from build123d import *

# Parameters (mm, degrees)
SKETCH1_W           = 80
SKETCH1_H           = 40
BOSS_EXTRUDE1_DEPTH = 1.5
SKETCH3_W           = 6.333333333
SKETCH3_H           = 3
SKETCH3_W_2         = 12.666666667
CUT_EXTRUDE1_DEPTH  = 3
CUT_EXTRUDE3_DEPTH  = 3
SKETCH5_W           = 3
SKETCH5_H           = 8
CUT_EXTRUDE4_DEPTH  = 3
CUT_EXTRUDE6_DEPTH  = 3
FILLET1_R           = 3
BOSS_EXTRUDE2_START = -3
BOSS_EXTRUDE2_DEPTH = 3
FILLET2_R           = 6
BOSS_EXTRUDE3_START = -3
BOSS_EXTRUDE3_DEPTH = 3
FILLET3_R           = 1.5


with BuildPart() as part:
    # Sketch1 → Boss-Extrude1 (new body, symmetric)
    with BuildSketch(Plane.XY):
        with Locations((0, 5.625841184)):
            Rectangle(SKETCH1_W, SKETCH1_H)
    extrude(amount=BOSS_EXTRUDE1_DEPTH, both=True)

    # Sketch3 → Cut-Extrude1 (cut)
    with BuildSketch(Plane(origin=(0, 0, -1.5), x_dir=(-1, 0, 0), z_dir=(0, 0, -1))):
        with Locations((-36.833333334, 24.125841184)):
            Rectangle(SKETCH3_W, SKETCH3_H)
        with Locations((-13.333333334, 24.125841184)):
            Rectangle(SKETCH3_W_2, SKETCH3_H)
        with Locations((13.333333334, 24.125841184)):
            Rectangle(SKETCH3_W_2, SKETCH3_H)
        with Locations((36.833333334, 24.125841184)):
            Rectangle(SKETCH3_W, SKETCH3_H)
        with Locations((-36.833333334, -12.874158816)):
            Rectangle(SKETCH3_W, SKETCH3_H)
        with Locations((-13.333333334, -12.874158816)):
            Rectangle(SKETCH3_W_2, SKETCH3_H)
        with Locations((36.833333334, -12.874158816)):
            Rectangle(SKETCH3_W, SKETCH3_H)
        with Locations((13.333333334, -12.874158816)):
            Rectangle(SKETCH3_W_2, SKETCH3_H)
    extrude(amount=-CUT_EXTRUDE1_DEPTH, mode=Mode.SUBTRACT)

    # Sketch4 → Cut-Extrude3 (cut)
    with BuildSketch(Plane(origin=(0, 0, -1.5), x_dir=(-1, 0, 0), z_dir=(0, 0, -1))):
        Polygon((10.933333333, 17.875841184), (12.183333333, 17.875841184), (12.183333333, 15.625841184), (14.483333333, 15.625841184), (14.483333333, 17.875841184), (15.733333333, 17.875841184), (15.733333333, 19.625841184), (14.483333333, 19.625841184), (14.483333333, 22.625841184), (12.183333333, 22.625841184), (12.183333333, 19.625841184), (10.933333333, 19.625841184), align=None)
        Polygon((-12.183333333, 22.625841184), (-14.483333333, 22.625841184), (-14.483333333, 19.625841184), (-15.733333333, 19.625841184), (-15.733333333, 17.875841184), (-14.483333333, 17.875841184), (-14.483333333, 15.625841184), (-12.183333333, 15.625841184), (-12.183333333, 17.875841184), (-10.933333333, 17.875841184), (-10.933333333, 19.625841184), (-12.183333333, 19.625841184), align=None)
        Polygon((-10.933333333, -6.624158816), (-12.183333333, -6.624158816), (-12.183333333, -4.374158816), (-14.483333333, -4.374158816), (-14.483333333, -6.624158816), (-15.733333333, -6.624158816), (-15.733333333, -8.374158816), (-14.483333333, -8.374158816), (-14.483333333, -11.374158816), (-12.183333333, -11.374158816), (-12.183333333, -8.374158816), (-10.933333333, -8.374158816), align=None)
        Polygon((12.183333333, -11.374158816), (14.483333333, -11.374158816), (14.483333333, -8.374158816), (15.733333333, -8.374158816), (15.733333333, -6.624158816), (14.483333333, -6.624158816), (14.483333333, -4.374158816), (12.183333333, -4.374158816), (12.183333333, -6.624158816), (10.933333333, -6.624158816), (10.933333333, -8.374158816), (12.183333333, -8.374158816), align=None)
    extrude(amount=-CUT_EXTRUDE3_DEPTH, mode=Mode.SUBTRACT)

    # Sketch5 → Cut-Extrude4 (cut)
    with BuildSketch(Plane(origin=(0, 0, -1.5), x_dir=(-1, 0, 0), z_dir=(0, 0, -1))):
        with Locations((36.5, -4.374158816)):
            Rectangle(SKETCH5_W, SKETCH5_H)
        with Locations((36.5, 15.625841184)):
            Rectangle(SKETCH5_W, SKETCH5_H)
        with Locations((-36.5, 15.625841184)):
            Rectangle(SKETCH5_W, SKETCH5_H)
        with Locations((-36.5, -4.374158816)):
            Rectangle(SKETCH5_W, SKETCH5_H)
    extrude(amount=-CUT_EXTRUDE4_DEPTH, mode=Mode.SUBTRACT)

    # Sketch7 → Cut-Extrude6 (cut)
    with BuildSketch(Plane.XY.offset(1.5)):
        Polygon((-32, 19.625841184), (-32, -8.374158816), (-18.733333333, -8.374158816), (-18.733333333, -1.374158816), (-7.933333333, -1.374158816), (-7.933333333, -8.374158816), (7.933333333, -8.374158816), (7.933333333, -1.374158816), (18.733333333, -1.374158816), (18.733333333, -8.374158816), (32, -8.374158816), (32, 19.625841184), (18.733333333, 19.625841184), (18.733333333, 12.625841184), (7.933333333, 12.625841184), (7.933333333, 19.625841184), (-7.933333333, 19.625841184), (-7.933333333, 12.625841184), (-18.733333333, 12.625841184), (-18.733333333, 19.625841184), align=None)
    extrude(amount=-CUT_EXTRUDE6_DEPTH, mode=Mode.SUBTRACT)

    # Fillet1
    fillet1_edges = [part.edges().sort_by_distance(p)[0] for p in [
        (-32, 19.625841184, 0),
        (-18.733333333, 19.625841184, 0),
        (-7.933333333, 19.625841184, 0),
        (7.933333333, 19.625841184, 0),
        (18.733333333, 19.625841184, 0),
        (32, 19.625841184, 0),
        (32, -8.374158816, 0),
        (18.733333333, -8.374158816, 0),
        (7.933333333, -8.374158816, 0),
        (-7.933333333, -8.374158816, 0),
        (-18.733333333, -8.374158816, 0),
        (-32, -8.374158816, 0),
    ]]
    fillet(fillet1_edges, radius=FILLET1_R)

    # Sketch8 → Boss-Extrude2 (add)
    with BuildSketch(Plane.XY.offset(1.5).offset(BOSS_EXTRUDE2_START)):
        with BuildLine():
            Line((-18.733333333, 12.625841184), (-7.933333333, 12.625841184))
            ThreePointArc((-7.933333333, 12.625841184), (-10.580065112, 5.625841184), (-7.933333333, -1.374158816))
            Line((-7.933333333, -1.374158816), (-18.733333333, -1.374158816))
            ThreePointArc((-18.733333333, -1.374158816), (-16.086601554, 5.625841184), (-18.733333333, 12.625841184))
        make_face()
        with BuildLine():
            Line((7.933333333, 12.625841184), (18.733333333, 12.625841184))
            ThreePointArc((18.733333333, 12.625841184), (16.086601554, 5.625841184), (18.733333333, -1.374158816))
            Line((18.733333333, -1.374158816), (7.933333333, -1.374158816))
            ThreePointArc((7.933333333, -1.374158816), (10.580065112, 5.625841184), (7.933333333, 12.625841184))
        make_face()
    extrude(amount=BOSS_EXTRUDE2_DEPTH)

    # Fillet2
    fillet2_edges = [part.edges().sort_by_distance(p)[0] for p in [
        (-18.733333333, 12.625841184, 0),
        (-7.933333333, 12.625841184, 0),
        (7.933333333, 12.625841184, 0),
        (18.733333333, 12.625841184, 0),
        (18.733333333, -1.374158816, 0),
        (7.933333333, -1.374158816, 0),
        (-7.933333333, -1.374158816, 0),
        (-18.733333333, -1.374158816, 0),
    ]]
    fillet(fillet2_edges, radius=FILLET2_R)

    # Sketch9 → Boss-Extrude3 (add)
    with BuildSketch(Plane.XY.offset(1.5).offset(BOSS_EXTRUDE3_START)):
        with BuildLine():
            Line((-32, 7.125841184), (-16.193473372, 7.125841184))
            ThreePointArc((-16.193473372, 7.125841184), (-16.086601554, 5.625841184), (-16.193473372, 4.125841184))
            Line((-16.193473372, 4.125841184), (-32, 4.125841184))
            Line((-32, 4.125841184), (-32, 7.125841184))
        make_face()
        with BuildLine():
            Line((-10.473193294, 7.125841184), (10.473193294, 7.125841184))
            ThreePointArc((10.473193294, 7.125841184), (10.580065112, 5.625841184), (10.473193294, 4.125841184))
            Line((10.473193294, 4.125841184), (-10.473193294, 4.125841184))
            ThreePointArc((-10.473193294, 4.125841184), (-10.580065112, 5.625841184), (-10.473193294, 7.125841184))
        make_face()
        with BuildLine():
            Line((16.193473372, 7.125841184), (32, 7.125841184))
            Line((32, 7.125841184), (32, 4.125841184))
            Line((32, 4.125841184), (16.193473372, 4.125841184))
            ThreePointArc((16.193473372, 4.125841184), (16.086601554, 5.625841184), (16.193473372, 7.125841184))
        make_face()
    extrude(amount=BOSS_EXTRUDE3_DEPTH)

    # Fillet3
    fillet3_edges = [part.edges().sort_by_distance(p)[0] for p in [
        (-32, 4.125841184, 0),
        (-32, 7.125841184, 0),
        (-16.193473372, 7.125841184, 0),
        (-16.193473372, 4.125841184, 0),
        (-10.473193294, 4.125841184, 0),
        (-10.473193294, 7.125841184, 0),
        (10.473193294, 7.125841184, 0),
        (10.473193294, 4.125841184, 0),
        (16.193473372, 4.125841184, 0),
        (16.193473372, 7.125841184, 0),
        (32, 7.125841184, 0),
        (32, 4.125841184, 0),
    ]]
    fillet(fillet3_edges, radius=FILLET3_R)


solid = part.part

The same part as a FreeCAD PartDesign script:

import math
import FreeCAD as App
import Part
import Sketcher
from FreeCAD import Vector


def edges_at(feature, points):
    """Names of the edges that pass closest to the given points."""
    edges = feature.Shape.Edges
    near = lambda p: min(range(len(edges)), key=lambda i: edges[i].distToShape(Part.Vertex(*p))[0])
    return sorted({f"Edge{near(p) + 1}" for p in points})

doc = App.newDocument("Part")
body = doc.addObject("PartDesign::Body", "Body")

sketch1 = body.newObject("Sketcher::SketchObject", "Sketch")
sketch1.AttachmentSupport = (doc.getObject("XY_Plane"), [""])
sketch1.MapMode = "FlatFace"
sketch1.addGeometry(Part.LineSegment(Vector(-40, 26, 0), Vector(-40, -14, 0)), False)
sketch1.addGeometry(Part.LineSegment(Vector(-40, -14, 0), Vector(40, -14, 0)), False)
sketch1.addGeometry(Part.LineSegment(Vector(40, -14, 0), Vector(40, 26, 0)), False)
sketch1.addGeometry(Part.LineSegment(Vector(40, 26, 0), Vector(-40, 26, 0)), False)
sketch1.addConstraint(Sketcher.Constraint("Coincident", 0, 2, 1, 1))
sketch1.addConstraint(Sketcher.Constraint("Coincident", 1, 2, 2, 1))
sketch1.addConstraint(Sketcher.Constraint("Coincident", 2, 2, 3, 1))
sketch1.addConstraint(Sketcher.Constraint("Coincident", 3, 2, 0, 1))
sketch1.addConstraint(Sketcher.Constraint("Vertical", 0))
sketch1.addConstraint(Sketcher.Constraint("Horizontal", 1))
sketch1.addConstraint(Sketcher.Constraint("Vertical", 2))
sketch1.addConstraint(Sketcher.Constraint("Horizontal", 3))
sketch1.addConstraint(Sketcher.Constraint("DistanceX", 1, 1, 1, 2, 80.0))
sketch1.addConstraint(Sketcher.Constraint("DistanceY", 0, 2, 0, 1, 40.0))
sketch1.addConstraint(Sketcher.Constraint("DistanceX", 0, 2, -1, 1, 40.0))
sketch1.addConstraint(Sketcher.Constraint("DistanceY", 0, 2, -1, 1, 14.374159))
pad1 = body.newObject("PartDesign::Pad", "Pad")
pad1.Profile = sketch1
pad1.Length = 3
pad1.Midplane = True

sketch2 = body.newObject("Sketcher::SketchObject", "Sketch001")
sketch2.AttachmentSupport = (doc.getObject("XY_Plane"), [""])
sketch2.MapMode = "FlatFace"
sketch2.AttachmentOffset = App.Placement(Vector(0, 0, -1.5), App.Rotation())
sketch2.addGeometry(Part.LineSegment(Vector(40, 25.6, 0), Vector(40, 22.6, 0)), False)
sketch2.addGeometry(Part.LineSegment(Vector(40, 22.6, 0), Vector(33.7, 22.6, 0)), False)
sketch2.addGeometry(Part.LineSegment(Vector(33.7, 22.6, 0), Vector(33.7, 25.6, 0)), False)
sketch2.addGeometry(Part.LineSegment(Vector(33.7, 25.6, 0), Vector(40, 25.6, 0)), False)
sketch2.addGeometry(Part.LineSegment(Vector(19.7, 25.6, 0), Vector(19.7, 22.6, 0)), False)
sketch2.addGeometry(Part.LineSegment(Vector(19.7, 22.6, 0), Vector(7, 22.6, 0)), False)
sketch2.addGeometry(Part.LineSegment(Vector(7, 22.6, 0), Vector(7, 25.6, 0)), False)
sketch2.addGeometry(Part.LineSegment(Vector(7, 25.6, 0), Vector(19.7, 25.6, 0)), False)
sketch2.addGeometry(Part.LineSegment(Vector(-7, 25.6, 0), Vector(-7, 22.6, 0)), False)
sketch2.addGeometry(Part.LineSegment(Vector(-7, 22.6, 0), Vector(-19.7, 22.6, 0)), False)
sketch2.addGeometry(Part.LineSegment(Vector(-19.7, 22.6, 0), Vector(-19.7, 25.6, 0)), False)
sketch2.addGeometry(Part.LineSegment(Vector(-19.7, 25.6, 0), Vector(-7, 25.6, 0)), False)
sketch2.addGeometry(Part.LineSegment(Vector(-33.7, 25.6, 0), Vector(-33.7, 22.6, 0)), False)
sketch2.addGeometry(Part.LineSegment(Vector(-33.7, 22.6, 0), Vector(-40, 22.6, 0)), False)
sketch2.addGeometry(Part.LineSegment(Vector(-40, 22.6, 0), Vector(-40, 25.6, 0)), False)
sketch2.addGeometry(Part.LineSegment(Vector(-40, 25.6, 0), Vector(-33.7, 25.6, 0)), False)
sketch2.addGeometry(Part.LineSegment(Vector(40, -11.4, 0), Vector(40, -14.4, 0)), False)
sketch2.addGeometry(Part.LineSegment(Vector(40, -14.4, 0), Vector(33.7, -14.4, 0)), False)
sketch2.addGeometry(Part.LineSegment(Vector(33.7, -14.4, 0), Vector(33.7, -11.4, 0)), False)
sketch2.addGeometry(Part.LineSegment(Vector(33.7, -11.4, 0), Vector(40, -11.4, 0)), False)
sketch2.addGeometry(Part.LineSegment(Vector(19.7, -11.4, 0), Vector(19.7, -14.4, 0)), False)
sketch2.addGeometry(Part.LineSegment(Vector(19.7, -14.4, 0), Vector(7, -14.4, 0)), False)
sketch2.addGeometry(Part.LineSegment(Vector(7, -14.4, 0), Vector(7, -11.4, 0)), False)
sketch2.addGeometry(Part.LineSegment(Vector(7, -11.4, 0), Vector(19.7, -11.4, 0)), False)
sketch2.addGeometry(Part.LineSegment(Vector(-33.7, -11.4, 0), Vector(-33.7, -14.4, 0)), False)
sketch2.addGeometry(Part.LineSegment(Vector(-33.7, -14.4, 0), Vector(-40, -14.4, 0)), False)
sketch2.addGeometry(Part.LineSegment(Vector(-40, -14.4, 0), Vector(-40, -11.4, 0)), False)
sketch2.addGeometry(Part.LineSegment(Vector(-40, -11.4, 0), Vector(-33.7, -11.4, 0)), False)
sketch2.addGeometry(Part.LineSegment(Vector(-7, -11.4, 0), Vector(-7, -14.4, 0)), False)
sketch2.addGeometry(Part.LineSegment(Vector(-7, -14.4, 0), Vector(-19.7, -14.4, 0)), False)
sketch2.addGeometry(Part.LineSegment(Vector(-19.7, -14.4, 0), Vector(-19.7, -11.4, 0)), False)
sketch2.addGeometry(Part.LineSegment(Vector(-19.7, -11.4, 0), Vector(-7, -11.4, 0)), False)
sketch2.addConstraint(Sketcher.Constraint("Coincident", 0, 2, 1, 1))
sketch2.addConstraint(Sketcher.Constraint("Coincident", 1, 2, 2, 1))
sketch2.addConstraint(Sketcher.Constraint("Coincident", 2, 2, 3, 1))
sketch2.addConstraint(Sketcher.Constraint("Coincident", 3, 2, 0, 1))
sketch2.addConstraint(Sketcher.Constraint("Coincident", 4, 2, 5, 1))
sketch2.addConstraint(Sketcher.Constraint("Coincident", 5, 2, 6, 1))
sketch2.addConstraint(Sketcher.Constraint("Coincident", 6, 2, 7, 1))
sketch2.addConstraint(Sketcher.Constraint("Coincident", 7, 2, 4, 1))
sketch2.addConstraint(Sketcher.Constraint("Coincident", 8, 2, 9, 1))
sketch2.addConstraint(Sketcher.Constraint("Coincident", 9, 2, 10, 1))
sketch2.addConstraint(Sketcher.Constraint("Coincident", 10, 2, 11, 1))
sketch2.addConstraint(Sketcher.Constraint("Coincident", 11, 2, 8, 1))
sketch2.addConstraint(Sketcher.Constraint("Coincident", 12, 2, 13, 1))
sketch2.addConstraint(Sketcher.Constraint("Coincident", 13, 2, 14, 1))
sketch2.addConstraint(Sketcher.Constraint("Coincident", 14, 2, 15, 1))
sketch2.addConstraint(Sketcher.Constraint("Coincident", 15, 2, 12, 1))
sketch2.addConstraint(Sketcher.Constraint("Coincident", 16, 2, 17, 1))
sketch2.addConstraint(Sketcher.Constraint("Coincident", 17, 2, 18, 1))
sketch2.addConstraint(Sketcher.Constraint("Coincident", 18, 2, 19, 1))
sketch2.addConstraint(Sketcher.Constraint("Coincident", 19, 2, 16, 1))
sketch2.addConstraint(Sketcher.Constraint("Coincident", 20, 2, 21, 1))
sketch2.addConstraint(Sketcher.Constraint("Coincident", 21, 2, 22, 1))
sketch2.addConstraint(Sketcher.Constraint("Coincident", 22, 2, 23, 1))
sketch2.addConstraint(Sketcher.Constraint("Coincident", 23, 2, 20, 1))
sketch2.addConstraint(Sketcher.Constraint("Coincident", 24, 2, 25, 1))
sketch2.addConstraint(Sketcher.Constraint("Coincident", 25, 2, 26, 1))
sketch2.addConstraint(Sketcher.Constraint("Coincident", 26, 2, 27, 1))
sketch2.addConstraint(Sketcher.Constraint("Coincident", 27, 2, 24, 1))
sketch2.addConstraint(Sketcher.Constraint("Coincident", 28, 2, 29, 1))
sketch2.addConstraint(Sketcher.Constraint("Coincident", 29, 2, 30, 1))
sketch2.addConstraint(Sketcher.Constraint("Coincident", 30, 2, 31, 1))
sketch2.addConstraint(Sketcher.Constraint("Coincident", 31, 2, 28, 1))
sketch2.addConstraint(Sketcher.Constraint("Vertical", 0))
sketch2.addConstraint(Sketcher.Constraint("Horizontal", 1))
sketch2.addConstraint(Sketcher.Constraint("Vertical", 2))
sketch2.addConstraint(Sketcher.Constraint("Horizontal", 3))
sketch2.addConstraint(Sketcher.Constraint("Vertical", 4))
sketch2.addConstraint(Sketcher.Constraint("Horizontal", 5))
sketch2.addConstraint(Sketcher.Constraint("Vertical", 6))
sketch2.addConstraint(Sketcher.Constraint("Horizontal", 7))
sketch2.addConstraint(Sketcher.Constraint("Vertical", 8))
sketch2.addConstraint(Sketcher.Constraint("Horizontal", 9))
sketch2.addConstraint(Sketcher.Constraint("Vertical", 10))
sketch2.addConstraint(Sketcher.Constraint("Horizontal", 11))
sketch2.addConstraint(Sketcher.Constraint("Vertical", 12))
sketch2.addConstraint(Sketcher.Constraint("Horizontal", 13))
sketch2.addConstraint(Sketcher.Constraint("Vertical", 14))
sketch2.addConstraint(Sketcher.Constraint("Horizontal", 15))
sketch2.addConstraint(Sketcher.Constraint("Vertical", 16))
sketch2.addConstraint(Sketcher.Constraint("Horizontal", 17))
sketch2.addConstraint(Sketcher.Constraint("Vertical", 18))
sketch2.addConstraint(Sketcher.Constraint("Horizontal", 19))
sketch2.addConstraint(Sketcher.Constraint("Vertical", 20))
sketch2.addConstraint(Sketcher.Constraint("Horizontal", 21))
sketch2.addConstraint(Sketcher.Constraint("Vertical", 22))
sketch2.addConstraint(Sketcher.Constraint("Horizontal", 23))
sketch2.addConstraint(Sketcher.Constraint("Vertical", 24))
sketch2.addConstraint(Sketcher.Constraint("Horizontal", 25))
sketch2.addConstraint(Sketcher.Constraint("Vertical", 26))
sketch2.addConstraint(Sketcher.Constraint("Horizontal", 27))
sketch2.addConstraint(Sketcher.Constraint("Vertical", 28))
sketch2.addConstraint(Sketcher.Constraint("Horizontal", 29))
sketch2.addConstraint(Sketcher.Constraint("Vertical", 30))
sketch2.addConstraint(Sketcher.Constraint("Horizontal", 31))
sketch2.addConstraint(Sketcher.Constraint("Symmetric", 5, 2, 8, 2, -2))
sketch2.addConstraint(Sketcher.Constraint("Symmetric", 7, 2, 10, 2, -2))
sketch2.addConstraint(Sketcher.Constraint("Symmetric", 1, 2, 12, 2, -2))
sketch2.addConstraint(Sketcher.Constraint("Symmetric", 3, 2, 14, 2, -2))
sketch2.addConstraint(Sketcher.Constraint("Symmetric", 17, 2, 24, 2, -2))
sketch2.addConstraint(Sketcher.Constraint("Symmetric", 19, 2, 26, 2, -2))
sketch2.addConstraint(Sketcher.Constraint("Symmetric", 21, 2, 28, 2, -2))
sketch2.addConstraint(Sketcher.Constraint("Symmetric", 23, 2, 30, 2, -2))
sketch2.addConstraint(Sketcher.Constraint("Horizontal", 1, 2, 4, 2))
sketch2.addConstraint(Sketcher.Constraint("Horizontal", 3, 2, 6, 2))
sketch2.addConstraint(Sketcher.Constraint("Horizontal", 17, 2, 20, 2))
sketch2.addConstraint(Sketcher.Constraint("Horizontal", 19, 2, 22, 2))
sketch2.addConstraint(Sketcher.Constraint("Vertical", 3, 2, 16, 2))
sketch2.addConstraint(Sketcher.Constraint("Vertical", 2, 2, 17, 2))
sketch2.addConstraint(Sketcher.Constraint("Vertical", 7, 2, 20, 2))
sketch2.addConstraint(Sketcher.Constraint("Vertical", 6, 2, 21, 2))
sketch2.addConstraint(Sketcher.Constraint("Equal", 14, 16))
sketch2.addConstraint(Sketcher.Constraint("DistanceY", 0, 2, 0, 1, 3.0))
sketch2.addConstraint(Sketcher.Constraint("DistanceX", -1, 1, 0, 2, 40.0))
sketch2.addConstraint(Sketcher.Constraint("DistanceX", -1, 1, 5, 2, 7.0))
sketch2.addConstraint(Sketcher.Constraint("DistanceX", 4, 2, 1, 2, 14.0))
sketch2.addConstraint(Sketcher.Constraint("DistanceY", 16, 2, 0, 2, 37.0))
sketch2.addConstraint(Sketcher.Constraint("DistanceX", 1, 2, 1, 1, 6.333333))
sketch2.addConstraint(Sketcher.Constraint("DistanceY", -1, 1, 0, 2, 22.625841))
pocket1 = body.newObject("PartDesign::Pocket", "Pocket")
pocket1.Profile = sketch2
pocket1.Length = 3
pocket1.Reversed = True

sketch3 = body.newObject("Sketcher::SketchObject", "Sketch002")
sketch3.AttachmentSupport = (doc.getObject("XY_Plane"), [""])
sketch3.MapMode = "FlatFace"
sketch3.AttachmentOffset = App.Placement(Vector(0, 0, -1.5), App.Rotation())
sketch3.addGeometry(Part.LineSegment(Vector(-10.9, 17.9, 0), Vector(-12.2, 17.9, 0)), False)
sketch3.addGeometry(Part.LineSegment(Vector(-12.2, 17.9, 0), Vector(-12.2, 15.6, 0)), False)
sketch3.addGeometry(Part.LineSegment(Vector(-12.2, 15.6, 0), Vector(-14.5, 15.6, 0)), False)
sketch3.addGeometry(Part.LineSegment(Vector(-14.5, 15.6, 0), Vector(-14.5, 17.9, 0)), False)
sketch3.addGeometry(Part.LineSegment(Vector(-14.5, 17.9, 0), Vector(-15.7, 17.9, 0)), False)
sketch3.addGeometry(Part.LineSegment(Vector(-15.7, 17.9, 0), Vector(-15.7, 19.6, 0)), False)
sketch3.addGeometry(Part.LineSegment(Vector(-15.7, 19.6, 0), Vector(-14.5, 19.6, 0)), False)
sketch3.addGeometry(Part.LineSegment(Vector(-14.5, 19.6, 0), Vector(-14.5, 22.6, 0)), False)
sketch3.addGeometry(Part.LineSegment(Vector(-14.5, 22.6, 0), Vector(-12.2, 22.6, 0)), False)
sketch3.addGeometry(Part.LineSegment(Vector(-12.2, 22.6, 0), Vector(-12.2, 19.6, 0)), False)
sketch3.addGeometry(Part.LineSegment(Vector(-12.2, 19.6, 0), Vector(-10.9, 19.6, 0)), False)
sketch3.addGeometry(Part.LineSegment(Vector(-10.9, 19.6, 0), Vector(-10.9, 17.9, 0)), False)
sketch3.addGeometry(Part.LineSegment(Vector(12.2, 22.6, 0), Vector(14.5, 22.6, 0)), False)
sketch3.addGeometry(Part.LineSegment(Vector(14.5, 22.6, 0), Vector(14.5, 19.6, 0)), False)
sketch3.addGeometry(Part.LineSegment(Vector(14.5, 19.6, 0), Vector(15.7, 19.6, 0)), False)
sketch3.addGeometry(Part.LineSegment(Vector(15.7, 19.6, 0), Vector(15.7, 17.9, 0)), False)
sketch3.addGeometry(Part.LineSegment(Vector(15.7, 17.9, 0), Vector(14.5, 17.9, 0)), False)
sketch3.addGeometry(Part.LineSegment(Vector(14.5, 17.9, 0), Vector(14.5, 15.6, 0)), False)
sketch3.addGeometry(Part.LineSegment(Vector(14.5, 15.6, 0), Vector(12.2, 15.6, 0)), False)
sketch3.addGeometry(Part.LineSegment(Vector(12.2, 15.6, 0), Vector(12.2, 17.9, 0)), False)
sketch3.addGeometry(Part.LineSegment(Vector(12.2, 17.9, 0), Vector(10.9, 17.9, 0)), False)
sketch3.addGeometry(Part.LineSegment(Vector(10.9, 17.9, 0), Vector(10.9, 19.6, 0)), False)
sketch3.addGeometry(Part.LineSegment(Vector(10.9, 19.6, 0), Vector(12.2, 19.6, 0)), False)
sketch3.addGeometry(Part.LineSegment(Vector(12.2, 19.6, 0), Vector(12.2, 22.6, 0)), False)
sketch3.addGeometry(Part.LineSegment(Vector(10.9, -6.6, 0), Vector(12.2, -6.6, 0)), False)
sketch3.addGeometry(Part.LineSegment(Vector(12.2, -6.6, 0), Vector(12.2, -4.4, 0)), False)
sketch3.addGeometry(Part.LineSegment(Vector(12.2, -4.4, 0), Vector(14.5, -4.4, 0)), False)
sketch3.addGeometry(Part.LineSegment(Vector(14.5, -4.4, 0), Vector(14.5, -6.6, 0)), False)
sketch3.addGeometry(Part.LineSegment(Vector(14.5, -6.6, 0), Vector(15.7, -6.6, 0)), False)
sketch3.addGeometry(Part.LineSegment(Vector(15.7, -6.6, 0), Vector(15.7, -8.4, 0)), False)
sketch3.addGeometry(Part.LineSegment(Vector(15.7, -8.4, 0), Vector(14.5, -8.4, 0)), False)
sketch3.addGeometry(Part.LineSegment(Vector(14.5, -8.4, 0), Vector(14.5, -11.4, 0)), False)
sketch3.addGeometry(Part.LineSegment(Vector(14.5, -11.4, 0), Vector(12.2, -11.4, 0)), False)
sketch3.addGeometry(Part.LineSegment(Vector(12.2, -11.4, 0), Vector(12.2, -8.4, 0)), False)
sketch3.addGeometry(Part.LineSegment(Vector(12.2, -8.4, 0), Vector(10.9, -8.4, 0)), False)
sketch3.addGeometry(Part.LineSegment(Vector(10.9, -8.4, 0), Vector(10.9, -6.6, 0)), False)
sketch3.addGeometry(Part.LineSegment(Vector(-12.2, -11.4, 0), Vector(-14.5, -11.4, 0)), False)
sketch3.addGeometry(Part.LineSegment(Vector(-14.5, -11.4, 0), Vector(-14.5, -8.4, 0)), False)
sketch3.addGeometry(Part.LineSegment(Vector(-14.5, -8.4, 0), Vector(-15.7, -8.4, 0)), False)
sketch3.addGeometry(Part.LineSegment(Vector(-15.7, -8.4, 0), Vector(-15.7, -6.6, 0)), False)
sketch3.addGeometry(Part.LineSegment(Vector(-15.7, -6.6, 0), Vector(-14.5, -6.6, 0)), False)
sketch3.addGeometry(Part.LineSegment(Vector(-14.5, -6.6, 0), Vector(-14.5, -4.4, 0)), False)
sketch3.addGeometry(Part.LineSegment(Vector(-14.5, -4.4, 0), Vector(-12.2, -4.4, 0)), False)
sketch3.addGeometry(Part.LineSegment(Vector(-12.2, -4.4, 0), Vector(-12.2, -6.6, 0)), False)
sketch3.addGeometry(Part.LineSegment(Vector(-12.2, -6.6, 0), Vector(-10.9, -6.6, 0)), False)
sketch3.addGeometry(Part.LineSegment(Vector(-10.9, -6.6, 0), Vector(-10.9, -8.4, 0)), False)
sketch3.addGeometry(Part.LineSegment(Vector(-10.9, -8.4, 0), Vector(-12.2, -8.4, 0)), False)
sketch3.addGeometry(Part.LineSegment(Vector(-12.2, -8.4, 0), Vector(-12.2, -11.4, 0)), False)
sketch3.addConstraint(Sketcher.Constraint("Coincident", 0, 2, 1, 1))
sketch3.addConstraint(Sketcher.Constraint("Coincident", 1, 2, 2, 1))
sketch3.addConstraint(Sketcher.Constraint("Coincident", 2, 2, 3, 1))
sketch3.addConstraint(Sketcher.Constraint("Coincident", 3, 2, 4, 1))
sketch3.addConstraint(Sketcher.Constraint("Coincident", 4, 2, 5, 1))
sketch3.addConstraint(Sketcher.Constraint("Coincident", 5, 2, 6, 1))
sketch3.addConstraint(Sketcher.Constraint("Coincident", 6, 2, 7, 1))
sketch3.addConstraint(Sketcher.Constraint("Coincident", 7, 2, 8, 1))
sketch3.addConstraint(Sketcher.Constraint("Coincident", 8, 2, 9, 1))
sketch3.addConstraint(Sketcher.Constraint("Coincident", 9, 2, 10, 1))
sketch3.addConstraint(Sketcher.Constraint("Coincident", 10, 2, 11, 1))
sketch3.addConstraint(Sketcher.Constraint("Coincident", 11, 2, 0, 1))
sketch3.addConstraint(Sketcher.Constraint("Coincident", 12, 2, 13, 1))
sketch3.addConstraint(Sketcher.Constraint("Coincident", 13, 2, 14, 1))
sketch3.addConstraint(Sketcher.Constraint("Coincident", 14, 2, 15, 1))
sketch3.addConstraint(Sketcher.Constraint("Coincident", 15, 2, 16, 1))
sketch3.addConstraint(Sketcher.Constraint("Coincident", 16, 2, 17, 1))
sketch3.addConstraint(Sketcher.Constraint("Coincident", 17, 2, 18, 1))
sketch3.addConstraint(Sketcher.Constraint("Coincident", 18, 2, 19, 1))
sketch3.addConstraint(Sketcher.Constraint("Coincident", 19, 2, 20, 1))
sketch3.addConstraint(Sketcher.Constraint("Coincident", 20, 2, 21, 1))
sketch3.addConstraint(Sketcher.Constraint("Coincident", 21, 2, 22, 1))
sketch3.addConstraint(Sketcher.Constraint("Coincident", 22, 2, 23, 1))
sketch3.addConstraint(Sketcher.Constraint("Coincident", 23, 2, 12, 1))
sketch3.addConstraint(Sketcher.Constraint("Coincident", 24, 2, 25, 1))
sketch3.addConstraint(Sketcher.Constraint("Coincident", 25, 2, 26, 1))
sketch3.addConstraint(Sketcher.Constraint("Coincident", 26, 2, 27, 1))
sketch3.addConstraint(Sketcher.Constraint("Coincident", 27, 2, 28, 1))
sketch3.addConstraint(Sketcher.Constraint("Coincident", 28, 2, 29, 1))
sketch3.addConstraint(Sketcher.Constraint("Coincident", 29, 2, 30, 1))
sketch3.addConstraint(Sketcher.Constraint("Coincident", 30, 2, 31, 1))
sketch3.addConstraint(Sketcher.Constraint("Coincident", 31, 2, 32, 1))
sketch3.addConstraint(Sketcher.Constraint("Coincident", 32, 2, 33, 1))
sketch3.addConstraint(Sketcher.Constraint("Coincident", 33, 2, 34, 1))
sketch3.addConstraint(Sketcher.Constraint("Coincident", 34, 2, 35, 1))
sketch3.addConstraint(Sketcher.Constraint("Coincident", 35, 2, 24, 1))
sketch3.addConstraint(Sketcher.Constraint("Coincident", 36, 2, 37, 1))
sketch3.addConstraint(Sketcher.Constraint("Coincident", 37, 2, 38, 1))
sketch3.addConstraint(Sketcher.Constraint("Coincident", 38, 2, 39, 1))
sketch3.addConstraint(Sketcher.Constraint("Coincident", 39, 2, 40, 1))
sketch3.addConstraint(Sketcher.Constraint("Coincident", 40, 2, 41, 1))
sketch3.addConstraint(Sketcher.Constraint("Coincident", 41, 2, 42, 1))
sketch3.addConstraint(Sketcher.Constraint("Coincident", 42, 2, 43, 1))
sketch3.addConstraint(Sketcher.Constraint("Coincident", 43, 2, 44, 1))
sketch3.addConstraint(Sketcher.Constraint("Coincident", 44, 2, 45, 1))
sketch3.addConstraint(Sketcher.Constraint("Coincident", 45, 2, 46, 1))
sketch3.addConstraint(Sketcher.Constraint("Coincident", 46, 2, 47, 1))
sketch3.addConstraint(Sketcher.Constraint("Coincident", 47, 2, 36, 1))
sketch3.addConstraint(Sketcher.Constraint("Horizontal", 0))
sketch3.addConstraint(Sketcher.Constraint("Vertical", 1))
sketch3.addConstraint(Sketcher.Constraint("Horizontal", 2))
sketch3.addConstraint(Sketcher.Constraint("Vertical", 3))
sketch3.addConstraint(Sketcher.Constraint("Horizontal", 4))
sketch3.addConstraint(Sketcher.Constraint("Vertical", 5))
sketch3.addConstraint(Sketcher.Constraint("Horizontal", 6))
sketch3.addConstraint(Sketcher.Constraint("Vertical", 7))
sketch3.addConstraint(Sketcher.Constraint("Horizontal", 8))
sketch3.addConstraint(Sketcher.Constraint("Vertical", 9))
sketch3.addConstraint(Sketcher.Constraint("Horizontal", 10))
sketch3.addConstraint(Sketcher.Constraint("Vertical", 11))
sketch3.addConstraint(Sketcher.Constraint("Horizontal", 12))
sketch3.addConstraint(Sketcher.Constraint("Vertical", 13))
sketch3.addConstraint(Sketcher.Constraint("Horizontal", 14))
sketch3.addConstraint(Sketcher.Constraint("Vertical", 15))
sketch3.addConstraint(Sketcher.Constraint("Horizontal", 16))
sketch3.addConstraint(Sketcher.Constraint("Vertical", 17))
sketch3.addConstraint(Sketcher.Constraint("Horizontal", 18))
sketch3.addConstraint(Sketcher.Constraint("Vertical", 19))
sketch3.addConstraint(Sketcher.Constraint("Horizontal", 20))
sketch3.addConstraint(Sketcher.Constraint("Vertical", 21))
sketch3.addConstraint(Sketcher.Constraint("Horizontal", 22))
sketch3.addConstraint(Sketcher.Constraint("Vertical", 23))
sketch3.addConstraint(Sketcher.Constraint("Horizontal", 24))
sketch3.addConstraint(Sketcher.Constraint("Vertical", 25))
sketch3.addConstraint(Sketcher.Constraint("Horizontal", 26))
sketch3.addConstraint(Sketcher.Constraint("Vertical", 27))
sketch3.addConstraint(Sketcher.Constraint("Horizontal", 28))
sketch3.addConstraint(Sketcher.Constraint("Vertical", 29))
sketch3.addConstraint(Sketcher.Constraint("Horizontal", 30))
sketch3.addConstraint(Sketcher.Constraint("Vertical", 31))
sketch3.addConstraint(Sketcher.Constraint("Horizontal", 32))
sketch3.addConstraint(Sketcher.Constraint("Vertical", 33))
sketch3.addConstraint(Sketcher.Constraint("Horizontal", 34))
sketch3.addConstraint(Sketcher.Constraint("Vertical", 35))
sketch3.addConstraint(Sketcher.Constraint("Horizontal", 36))
sketch3.addConstraint(Sketcher.Constraint("Vertical", 37))
sketch3.addConstraint(Sketcher.Constraint("Horizontal", 38))
sketch3.addConstraint(Sketcher.Constraint("Vertical", 39))
sketch3.addConstraint(Sketcher.Constraint("Horizontal", 40))
sketch3.addConstraint(Sketcher.Constraint("Vertical", 41))
sketch3.addConstraint(Sketcher.Constraint("Horizontal", 42))
sketch3.addConstraint(Sketcher.Constraint("Vertical", 43))
sketch3.addConstraint(Sketcher.Constraint("Horizontal", 44))
sketch3.addConstraint(Sketcher.Constraint("Vertical", 45))
sketch3.addConstraint(Sketcher.Constraint("Horizontal", 46))
sketch3.addConstraint(Sketcher.Constraint("Vertical", 47))
sketch3.addConstraint(Sketcher.Constraint("Symmetric", 7, 2, 12, 2, -2))
sketch3.addConstraint(Sketcher.Constraint("Symmetric", 5, 2, 14, 2, -2))
sketch3.addConstraint(Sketcher.Constraint("Symmetric", 3, 2, 16, 2, -2))
sketch3.addConstraint(Sketcher.Constraint("Symmetric", 1, 2, 18, 2, -2))
sketch3.addConstraint(Sketcher.Constraint("Symmetric", 11, 2, 20, 2, -2))
sketch3.addConstraint(Sketcher.Constraint("Symmetric", 9, 2, 22, 2, -2))
sketch3.addConstraint(Sketcher.Constraint("Symmetric", 31, 2, 36, 2, -2))
sketch3.addConstraint(Sketcher.Constraint("Symmetric", 29, 2, 38, 2, -2))
sketch3.addConstraint(Sketcher.Constraint("Symmetric", 27, 2, 40, 2, -2))
sketch3.addConstraint(Sketcher.Constraint("Symmetric", 25, 2, 42, 2, -2))
sketch3.addConstraint(Sketcher.Constraint("Symmetric", 35, 2, 44, 2, -2))
sketch3.addConstraint(Sketcher.Constraint("Symmetric", 33, 2, 46, 2, -2))
sketch3.addConstraint(Sketcher.Constraint("Horizontal", 0, 2, 3, 2))
sketch3.addConstraint(Sketcher.Constraint("Horizontal", 6, 2, 9, 2))
sketch3.addConstraint(Sketcher.Constraint("Horizontal", 24, 2, 27, 2))
sketch3.addConstraint(Sketcher.Constraint("Horizontal", 30, 2, 33, 2))
sketch3.addConstraint(Sketcher.Constraint("Vertical", 3, 2, 6, 2))
sketch3.addConstraint(Sketcher.Constraint("Vertical", 1, 2, 8, 2))
sketch3.addConstraint(Sketcher.Constraint("Vertical", 23, 2, 24, 2))
sketch3.addConstraint(Sketcher.Constraint("Vertical", 17, 2, 26, 2))
sketch3.addConstraint(Sketcher.Constraint("Vertical", 15, 2, 28, 2))
sketch3.addConstraint(Sketcher.Constraint("Vertical", 27, 2, 30, 2))
sketch3.addConstraint(Sketcher.Constraint("Vertical", 25, 2, 32, 2))
sketch3.addConstraint(Sketcher.Constraint("Vertical", 21, 2, 34, 2))
sketch3.addConstraint(Sketcher.Constraint("Equal", 0, 4))
sketch3.addConstraint(Sketcher.Constraint("Equal", 19, 25))
sketch3.addConstraint(Sketcher.Constraint("Equal", 21, 29))
sketch3.addConstraint(Sketcher.Constraint("Equal", 23, 31))
sketch3.addConstraint(Sketcher.Constraint("DistanceY", 7, 1, 7, 2, 3.0))
sketch3.addConstraint(Sketcher.Constraint("DistanceX", 2, 2, 2, 1, 2.3))
sketch3.addConstraint(Sketcher.Constraint("DistanceY", 2, 2, 5, 2, 4.0))
sketch3.addConstraint(Sketcher.Constraint("DistanceY", 25, 2, 18, 2, 20.0))
sketch3.addConstraint(Sketcher.Constraint("DistanceX", 0, 2, 0, 1, 1.25))
sketch3.addConstraint(Sketcher.Constraint("DistanceY", 1, 2, 1, 1, 2.25))
sketch3.addConstraint(Sketcher.Constraint("DistanceY", -1, 1, 0, 2, 17.875841))
sketch3.addConstraint(Sketcher.Constraint("DistanceX", 0, 2, -1, 1, 12.183333))
pocket2 = body.newObject("PartDesign::Pocket", "Pocket001")
pocket2.Profile = sketch3
pocket2.Length = 3
pocket2.Reversed = True

sketch4 = body.newObject("Sketcher::SketchObject", "Sketch003")
sketch4.AttachmentSupport = (doc.getObject("XY_Plane"), [""])
sketch4.MapMode = "FlatFace"
sketch4.AttachmentOffset = App.Placement(Vector(0, 0, -1.5), App.Rotation())
sketch4.addGeometry(Part.LineSegment(Vector(-35, -0.4, 0), Vector(-35, -8.4, 0)), False)
sketch4.addGeometry(Part.LineSegment(Vector(-35, -8.4, 0), Vector(-38, -8.4, 0)), False)
sketch4.addGeometry(Part.LineSegment(Vector(-38, -8.4, 0), Vector(-38, -0.4, 0)), False)
sketch4.addGeometry(Part.LineSegment(Vector(-38, -0.4, 0), Vector(-35, -0.4, 0)), False)
sketch4.addGeometry(Part.LineSegment(Vector(-35, 19.6, 0), Vector(-35, 11.6, 0)), False)
sketch4.addGeometry(Part.LineSegment(Vector(-35, 11.6, 0), Vector(-38, 11.6, 0)), False)
sketch4.addGeometry(Part.LineSegment(Vector(-38, 11.6, 0), Vector(-38, 19.6, 0)), False)
sketch4.addGeometry(Part.LineSegment(Vector(-38, 19.6, 0), Vector(-35, 19.6, 0)), False)
sketch4.addGeometry(Part.LineSegment(Vector(38, 19.6, 0), Vector(38, 11.6, 0)), False)
sketch4.addGeometry(Part.LineSegment(Vector(38, 11.6, 0), Vector(35, 11.6, 0)), False)
sketch4.addGeometry(Part.LineSegment(Vector(35, 11.6, 0), Vector(35, 19.6, 0)), False)
sketch4.addGeometry(Part.LineSegment(Vector(35, 19.6, 0), Vector(38, 19.6, 0)), False)
sketch4.addGeometry(Part.LineSegment(Vector(38, -0.4, 0), Vector(38, -8.4, 0)), False)
sketch4.addGeometry(Part.LineSegment(Vector(38, -8.4, 0), Vector(35, -8.4, 0)), False)
sketch4.addGeometry(Part.LineSegment(Vector(35, -8.4, 0), Vector(35, -0.4, 0)), False)
sketch4.addGeometry(Part.LineSegment(Vector(35, -0.4, 0), Vector(38, -0.4, 0)), False)
sketch4.addConstraint(Sketcher.Constraint("Coincident", 0, 2, 1, 1))
sketch4.addConstraint(Sketcher.Constraint("Coincident", 1, 2, 2, 1))
sketch4.addConstraint(Sketcher.Constraint("Coincident", 2, 2, 3, 1))
sketch4.addConstraint(Sketcher.Constraint("Coincident", 3, 2, 0, 1))
sketch4.addConstraint(Sketcher.Constraint("Coincident", 4, 2, 5, 1))
sketch4.addConstraint(Sketcher.Constraint("Coincident", 5, 2, 6, 1))
sketch4.addConstraint(Sketcher.Constraint("Coincident", 6, 2, 7, 1))
sketch4.addConstraint(Sketcher.Constraint("Coincident", 7, 2, 4, 1))
sketch4.addConstraint(Sketcher.Constraint("Coincident", 8, 2, 9, 1))
sketch4.addConstraint(Sketcher.Constraint("Coincident", 9, 2, 10, 1))
sketch4.addConstraint(Sketcher.Constraint("Coincident", 10, 2, 11, 1))
sketch4.addConstraint(Sketcher.Constraint("Coincident", 11, 2, 8, 1))
sketch4.addConstraint(Sketcher.Constraint("Coincident", 12, 2, 13, 1))
sketch4.addConstraint(Sketcher.Constraint("Coincident", 13, 2, 14, 1))
sketch4.addConstraint(Sketcher.Constraint("Coincident", 14, 2, 15, 1))
sketch4.addConstraint(Sketcher.Constraint("Coincident", 15, 2, 12, 1))
sketch4.addConstraint(Sketcher.Constraint("Vertical", 0))
sketch4.addConstraint(Sketcher.Constraint("Horizontal", 1))
sketch4.addConstraint(Sketcher.Constraint("Vertical", 2))
sketch4.addConstraint(Sketcher.Constraint("Horizontal", 3))
sketch4.addConstraint(Sketcher.Constraint("Vertical", 4))
sketch4.addConstraint(Sketcher.Constraint("Horizontal", 5))
sketch4.addConstraint(Sketcher.Constraint("Vertical", 6))
sketch4.addConstraint(Sketcher.Constraint("Horizontal", 7))
sketch4.addConstraint(Sketcher.Constraint("Vertical", 8))
sketch4.addConstraint(Sketcher.Constraint("Horizontal", 9))
sketch4.addConstraint(Sketcher.Constraint("Vertical", 10))
sketch4.addConstraint(Sketcher.Constraint("Horizontal", 11))
sketch4.addConstraint(Sketcher.Constraint("Vertical", 12))
sketch4.addConstraint(Sketcher.Constraint("Horizontal", 13))
sketch4.addConstraint(Sketcher.Constraint("Vertical", 14))
sketch4.addConstraint(Sketcher.Constraint("Horizontal", 15))
sketch4.addConstraint(Sketcher.Constraint("Symmetric", 5, 2, 8, 2, -2))
sketch4.addConstraint(Sketcher.Constraint("Symmetric", 7, 2, 10, 2, -2))
sketch4.addConstraint(Sketcher.Constraint("Symmetric", 1, 2, 12, 2, -2))
sketch4.addConstraint(Sketcher.Constraint("Symmetric", 3, 2, 14, 2, -2))
sketch4.addConstraint(Sketcher.Constraint("Vertical", 3, 2, 4, 2))
sketch4.addConstraint(Sketcher.Constraint("Vertical", 2, 2, 5, 2))
sketch4.addConstraint(Sketcher.Constraint("Equal", 2, 4))
sketch4.addConstraint(Sketcher.Constraint("DistanceX", 1, 2, 1, 1, 3.0))
sketch4.addConstraint(Sketcher.Constraint("DistanceY", 0, 2, 0, 1, 8.0))
sketch4.addConstraint(Sketcher.Constraint("DistanceX", 0, 2, -1, 1, 35.0))
sketch4.addConstraint(Sketcher.Constraint("DistanceY", 3, 2, 4, 2, 12.0))
sketch4.addConstraint(Sketcher.Constraint("DistanceY", 0, 2, -1, 1, 8.374159))
pocket3 = body.newObject("PartDesign::Pocket", "Pocket002")
pocket3.Profile = sketch4
pocket3.Length = 3
pocket3.Reversed = True

sketch5 = body.newObject("Sketcher::SketchObject", "Sketch004")
sketch5.AttachmentSupport = (doc.getObject("XY_Plane"), [""])
sketch5.MapMode = "FlatFace"
sketch5.AttachmentOffset = App.Placement(Vector(0, 0, 1.5), App.Rotation())
sketch5.addGeometry(Part.LineSegment(Vector(-32, 20, 0), Vector(-32, -8, 0)), False)
sketch5.addGeometry(Part.LineSegment(Vector(-32, -8, 0), Vector(-19, -8, 0)), False)
sketch5.addGeometry(Part.LineSegment(Vector(-19, -8, 0), Vector(-19, -1, 0)), False)
sketch5.addGeometry(Part.LineSegment(Vector(-19, -1, 0), Vector(-8, -1, 0)), False)
sketch5.addGeometry(Part.LineSegment(Vector(-8, -1, 0), Vector(-8, -8, 0)), False)
sketch5.addGeometry(Part.LineSegment(Vector(-8, -8, 0), Vector(8, -8, 0)), False)
sketch5.addGeometry(Part.LineSegment(Vector(8, -8, 0), Vector(8, -1, 0)), False)
sketch5.addGeometry(Part.LineSegment(Vector(8, -1, 0), Vector(19, -1, 0)), False)
sketch5.addGeometry(Part.LineSegment(Vector(19, -1, 0), Vector(19, -8, 0)), False)
sketch5.addGeometry(Part.LineSegment(Vector(19, -8, 0), Vector(32, -8, 0)), False)
sketch5.addGeometry(Part.LineSegment(Vector(32, -8, 0), Vector(32, 20, 0)), False)
sketch5.addGeometry(Part.LineSegment(Vector(32, 20, 0), Vector(19, 20, 0)), False)
sketch5.addGeometry(Part.LineSegment(Vector(19, 20, 0), Vector(19, 13, 0)), False)
sketch5.addGeometry(Part.LineSegment(Vector(19, 13, 0), Vector(8, 13, 0)), False)
sketch5.addGeometry(Part.LineSegment(Vector(8, 13, 0), Vector(8, 20, 0)), False)
sketch5.addGeometry(Part.LineSegment(Vector(8, 20, 0), Vector(-8, 20, 0)), False)
sketch5.addGeometry(Part.LineSegment(Vector(-8, 20, 0), Vector(-8, 13, 0)), False)
sketch5.addGeometry(Part.LineSegment(Vector(-8, 13, 0), Vector(-19, 13, 0)), False)
sketch5.addGeometry(Part.LineSegment(Vector(-19, 13, 0), Vector(-19, 20, 0)), False)
sketch5.addGeometry(Part.LineSegment(Vector(-19, 20, 0), Vector(-32, 20, 0)), False)
sketch5.addConstraint(Sketcher.Constraint("Coincident", 0, 2, 1, 1))
sketch5.addConstraint(Sketcher.Constraint("Coincident", 1, 2, 2, 1))
sketch5.addConstraint(Sketcher.Constraint("Coincident", 2, 2, 3, 1))
sketch5.addConstraint(Sketcher.Constraint("Coincident", 3, 2, 4, 1))
sketch5.addConstraint(Sketcher.Constraint("Coincident", 4, 2, 5, 1))
sketch5.addConstraint(Sketcher.Constraint("Coincident", 5, 2, 6, 1))
sketch5.addConstraint(Sketcher.Constraint("Coincident", 6, 2, 7, 1))
sketch5.addConstraint(Sketcher.Constraint("Coincident", 7, 2, 8, 1))
sketch5.addConstraint(Sketcher.Constraint("Coincident", 8, 2, 9, 1))
sketch5.addConstraint(Sketcher.Constraint("Coincident", 9, 2, 10, 1))
sketch5.addConstraint(Sketcher.Constraint("Coincident", 10, 2, 11, 1))
sketch5.addConstraint(Sketcher.Constraint("Coincident", 11, 2, 12, 1))
sketch5.addConstraint(Sketcher.Constraint("Coincident", 12, 2, 13, 1))
sketch5.addConstraint(Sketcher.Constraint("Coincident", 13, 2, 14, 1))
sketch5.addConstraint(Sketcher.Constraint("Coincident", 14, 2, 15, 1))
sketch5.addConstraint(Sketcher.Constraint("Coincident", 15, 2, 16, 1))
sketch5.addConstraint(Sketcher.Constraint("Coincident", 16, 2, 17, 1))
sketch5.addConstraint(Sketcher.Constraint("Coincident", 17, 2, 18, 1))
sketch5.addConstraint(Sketcher.Constraint("Coincident", 18, 2, 19, 1))
sketch5.addConstraint(Sketcher.Constraint("Coincident", 19, 2, 0, 1))
sketch5.addConstraint(Sketcher.Constraint("Vertical", 0))
sketch5.addConstraint(Sketcher.Constraint("Horizontal", 1))
sketch5.addConstraint(Sketcher.Constraint("Vertical", 2))
sketch5.addConstraint(Sketcher.Constraint("Horizontal", 3))
sketch5.addConstraint(Sketcher.Constraint("Vertical", 4))
sketch5.addConstraint(Sketcher.Constraint("Horizontal", 5))
sketch5.addConstraint(Sketcher.Constraint("Vertical", 6))
sketch5.addConstraint(Sketcher.Constraint("Horizontal", 7))
sketch5.addConstraint(Sketcher.Constraint("Vertical", 8))
sketch5.addConstraint(Sketcher.Constraint("Horizontal", 9))
sketch5.addConstraint(Sketcher.Constraint("Vertical", 10))
sketch5.addConstraint(Sketcher.Constraint("Horizontal", 11))
sketch5.addConstraint(Sketcher.Constraint("Vertical", 12))
sketch5.addConstraint(Sketcher.Constraint("Horizontal", 13))
sketch5.addConstraint(Sketcher.Constraint("Vertical", 14))
sketch5.addConstraint(Sketcher.Constraint("Horizontal", 15))
sketch5.addConstraint(Sketcher.Constraint("Vertical", 16))
sketch5.addConstraint(Sketcher.Constraint("Horizontal", 17))
sketch5.addConstraint(Sketcher.Constraint("Vertical", 18))
sketch5.addConstraint(Sketcher.Constraint("Horizontal", 19))
sketch5.addConstraint(Sketcher.Constraint("Symmetric", 3, 2, 6, 2, -2))
sketch5.addConstraint(Sketcher.Constraint("Symmetric", 1, 2, 8, 2, -2))
sketch5.addConstraint(Sketcher.Constraint("Symmetric", 13, 2, 16, 2, -2))
sketch5.addConstraint(Sketcher.Constraint("Symmetric", 11, 2, 18, 2, -2))
sketch5.addConstraint(Sketcher.Constraint("Horizontal", 1, 2, 4, 2))
sketch5.addConstraint(Sketcher.Constraint("Horizontal", 11, 2, 14, 2))
sketch5.addConstraint(Sketcher.Constraint("Vertical", 8, 2, 11, 2))
sketch5.addConstraint(Sketcher.Constraint("Vertical", 6, 2, 13, 2))
sketch5.addConstraint(Sketcher.Constraint("Equal", 1, 9))
sketch5.addConstraint(Sketcher.Constraint("Equal", 8, 12))
sketch5.addConstraint(Sketcher.Constraint("DistanceY", 0, 2, 0, 1, 28.0))
sketch5.addConstraint(Sketcher.Constraint("DistanceY", 2, 1, 2, 2, 7.0))
sketch5.addConstraint(Sketcher.Constraint("DistanceX", 3, 1, 3, 2, 10.8))
sketch5.addConstraint(Sketcher.Constraint("DistanceX", 0, 2, -1, 1, 32.0))
sketch5.addConstraint(Sketcher.Constraint("DistanceX", 1, 1, 1, 2, 13.266667))
sketch5.addConstraint(Sketcher.Constraint("DistanceY", 0, 2, -1, 1, 8.374159))
pocket4 = body.newObject("PartDesign::Pocket", "Pocket003")
pocket4.Profile = sketch5
pocket4.Length = 3
doc.recompute()

fillet = body.newObject("PartDesign::Fillet", "Fillet")
fillet.Base = (pocket4, edges_at(pocket4, [
    (-32, 19.626, 0),
    (-18.733, 19.626, 0),
    (-7.933, 19.626, 0),
    (7.933, 19.626, 0),
    (18.733, 19.626, 0),
    (32, 19.626, 0),
    (32, -8.374, 0),
    (18.733, -8.374, 0),
    (7.933, -8.374, 0),
    (-7.933, -8.374, 0),
    (-18.733, -8.374, 0),
    (-32, -8.374, 0),
]))
fillet.Radius = 3

sketch6 = body.newObject("Sketcher::SketchObject", "Sketch005")
sketch6.AttachmentSupport = (doc.getObject("XY_Plane"), [""])
sketch6.MapMode = "FlatFace"
sketch6.AttachmentOffset = App.Placement(Vector(0, 0, -1.5), App.Rotation())
sketch6.addGeometry(Part.LineSegment(Vector(-8, 13, 0), Vector(-19, 13, 0)), False)
sketch6.addGeometry(Part.ArcOfCircle(Part.Circle(Vector(-27, 6, 0), Vector(0, 0, 1), 11), math.radians(-41), math.radians(41)), False)
sketch6.addGeometry(Part.LineSegment(Vector(-19, -1, 0), Vector(-8, -1, 0)), False)
sketch6.addGeometry(Part.ArcOfCircle(Part.Circle(Vector(0, 6, 0), Vector(0, 0, 1), 11), math.radians(139), math.radians(221)), False)
sketch6.addGeometry(Part.LineSegment(Vector(19, 13, 0), Vector(8, 13, 0)), False)
sketch6.addGeometry(Part.ArcOfCircle(Part.Circle(Vector(0, 6, 0), Vector(0, 0, 1), 11), math.radians(-41), math.radians(41)), False)
sketch6.addGeometry(Part.LineSegment(Vector(8, -1, 0), Vector(19, -1, 0)), False)
sketch6.addGeometry(Part.ArcOfCircle(Part.Circle(Vector(27, 6, 0), Vector(0, 0, 1), 11), math.radians(139), math.radians(221)), False)
sketch6.addConstraint(Sketcher.Constraint("Coincident", 0, 2, 1, 2))
sketch6.addConstraint(Sketcher.Constraint("Coincident", 1, 1, 2, 1))
sketch6.addConstraint(Sketcher.Constraint("Coincident", 2, 2, 3, 2))
sketch6.addConstraint(Sketcher.Constraint("Coincident", 3, 1, 0, 1))
sketch6.addConstraint(Sketcher.Constraint("Coincident", 4, 2, 5, 2))
sketch6.addConstraint(Sketcher.Constraint("Coincident", 5, 1, 6, 1))
sketch6.addConstraint(Sketcher.Constraint("Coincident", 6, 2, 7, 2))
sketch6.addConstraint(Sketcher.Constraint("Coincident", 7, 1, 4, 1))
sketch6.addConstraint(Sketcher.Constraint("Horizontal", 0))
sketch6.addConstraint(Sketcher.Constraint("Horizontal", 2))
sketch6.addConstraint(Sketcher.Constraint("Horizontal", 4))
sketch6.addConstraint(Sketcher.Constraint("Horizontal", 6))
sketch6.addConstraint(Sketcher.Constraint("Coincident", 5, 3, 3, 3))
sketch6.addConstraint(Sketcher.Constraint("Equal", 1, 3))
sketch6.addConstraint(Sketcher.Constraint("Equal", 3, 5))
sketch6.addConstraint(Sketcher.Constraint("Equal", 5, 7))
sketch6.addConstraint(Sketcher.Constraint("Symmetric", 1, 3, 7, 3, -2))
sketch6.addConstraint(Sketcher.Constraint("Symmetric", 3, 1, 4, 2, -2))
sketch6.addConstraint(Sketcher.Constraint("Horizontal", 1, 3, 3, 3))
sketch6.addConstraint(Sketcher.Constraint("Horizontal", 2, 2, 5, 1))
sketch6.addConstraint(Sketcher.Constraint("Vertical", 0, 2, 1, 1))
sketch6.addConstraint(Sketcher.Constraint("DistanceX", 0, 2, 0, 1, 10.8))
sketch6.addConstraint(Sketcher.Constraint("DistanceY", 1, 3, 0, 2, 7.0))
sketch6.addConstraint(Sketcher.Constraint("DistanceX", 0, 2, 7, 3, 45.4))
sketch6.addConstraint(Sketcher.Constraint("DistanceY", -1, 1, 1, 3, 5.625841))
pad2 = body.newObject("PartDesign::Pad", "Pad001")
pad2.Profile = sketch6
pad2.Length = 3
doc.recompute()

fillet2 = body.newObject("PartDesign::Fillet", "Fillet001")
fillet2.Base = (pad2, edges_at(pad2, [
    (-18.733, 12.626, 0),
    (-7.933, 12.626, 0),
    (7.933, 12.626, 0),
    (18.733, 12.626, 0),
    (18.733, -1.374, 0),
    (7.933, -1.374, 0),
    (-7.933, -1.374, 0),
    (-18.733, -1.374, 0),
]))
fillet2.Radius = 6

sketch7 = body.newObject("Sketcher::SketchObject", "Sketch006")
sketch7.AttachmentSupport = (doc.getObject("XY_Plane"), [""])
sketch7.MapMode = "FlatFace"
sketch7.AttachmentOffset = App.Placement(Vector(0, 0, -1.5), App.Rotation())
sketch7.addGeometry(Part.LineSegment(Vector(-16.2, 7.1, 0), Vector(-32, 7.1, 0)), False)
sketch7.addGeometry(Part.LineSegment(Vector(-32, 7.1, 0), Vector(-32, 4.1, 0)), False)
sketch7.addGeometry(Part.LineSegment(Vector(-32, 4.1, 0), Vector(-16.2, 4.1, 0)), False)
sketch7.addGeometry(Part.ArcOfCircle(Part.Circle(Vector(-26.7, 5.6, 0), Vector(0, 0, 1), 10.6), math.radians(-8.15), math.radians(8.15)), False)
sketch7.addGeometry(Part.LineSegment(Vector(10.5, 7.1, 0), Vector(-10.5, 7.1, 0)), False)
sketch7.addGeometry(Part.ArcOfCircle(Part.Circle(Vector(0, 5.6, 0), Vector(0, 0, 1), 10.6), math.radians(171.85), math.radians(188.15)), False)
sketch7.addGeometry(Part.LineSegment(Vector(-10.5, 4.1, 0), Vector(10.5, 4.1, 0)), False)
sketch7.addGeometry(Part.ArcOfCircle(Part.Circle(Vector(0, 5.6, 0), Vector(0, 0, 1), 10.6), math.radians(-8.15), math.radians(8.15)), False)
sketch7.addGeometry(Part.LineSegment(Vector(32, 7.1, 0), Vector(16.2, 7.1, 0)), False)
sketch7.addGeometry(Part.ArcOfCircle(Part.Circle(Vector(26.7, 5.6, 0), Vector(0, 0, 1), 10.6), math.radians(171.85), math.radians(188.15)), False)
sketch7.addGeometry(Part.LineSegment(Vector(16.2, 4.1, 0), Vector(32, 4.1, 0)), False)
sketch7.addGeometry(Part.LineSegment(Vector(32, 4.1, 0), Vector(32, 7.1, 0)), False)
sketch7.addConstraint(Sketcher.Constraint("Coincident", 0, 2, 1, 1))
sketch7.addConstraint(Sketcher.Constraint("Coincident", 1, 2, 2, 1))
sketch7.addConstraint(Sketcher.Constraint("Coincident", 2, 2, 3, 1))
sketch7.addConstraint(Sketcher.Constraint("Coincident", 3, 2, 0, 1))
sketch7.addConstraint(Sketcher.Constraint("Coincident", 4, 2, 5, 1))
sketch7.addConstraint(Sketcher.Constraint("Coincident", 5, 2, 6, 1))
sketch7.addConstraint(Sketcher.Constraint("Coincident", 6, 2, 7, 1))
sketch7.addConstraint(Sketcher.Constraint("Coincident", 7, 2, 4, 1))
sketch7.addConstraint(Sketcher.Constraint("Coincident", 8, 2, 9, 1))
sketch7.addConstraint(Sketcher.Constraint("Coincident", 9, 2, 10, 1))
sketch7.addConstraint(Sketcher.Constraint("Coincident", 10, 2, 11, 1))
sketch7.addConstraint(Sketcher.Constraint("Coincident", 11, 2, 8, 1))
sketch7.addConstraint(Sketcher.Constraint("Horizontal", 0))
sketch7.addConstraint(Sketcher.Constraint("Vertical", 1))
sketch7.addConstraint(Sketcher.Constraint("Horizontal", 2))
sketch7.addConstraint(Sketcher.Constraint("Horizontal", 4))
sketch7.addConstraint(Sketcher.Constraint("Horizontal", 6))
sketch7.addConstraint(Sketcher.Constraint("Horizontal", 8))
sketch7.addConstraint(Sketcher.Constraint("Horizontal", 10))
sketch7.addConstraint(Sketcher.Constraint("Vertical", 11))
sketch7.addConstraint(Sketcher.Constraint("Coincident", 7, 3, 5, 3))
sketch7.addConstraint(Sketcher.Constraint("Equal", 3, 5))
sketch7.addConstraint(Sketcher.Constraint("Equal", 5, 7))
sketch7.addConstraint(Sketcher.Constraint("Equal", 7, 9))
sketch7.addConstraint(Sketcher.Constraint("Symmetric", 3, 3, 9, 3, -2))
sketch7.addConstraint(Sketcher.Constraint("Symmetric", 1, 2, 10, 2, -2))
sketch7.addConstraint(Sketcher.Constraint("PointOnObject", 5, 3, -2))
sketch7.addConstraint(Sketcher.Constraint("Horizontal", 3, 3, 5, 3))
sketch7.addConstraint(Sketcher.Constraint("Horizontal", 3, 2, 4, 2))
sketch7.addConstraint(Sketcher.Constraint("Horizontal", 2, 2, 5, 2))
sketch7.addConstraint(Sketcher.Constraint("Horizontal", 7, 2, 8, 2))
sketch7.addConstraint(Sketcher.Constraint("Vertical", 2, 2, 3, 2))
sketch7.addConstraint(Sketcher.Constraint("DistanceY", 1, 2, 1, 1, 3.0))
sketch7.addConstraint(Sketcher.Constraint("DistanceX", 0, 2, -1, 1, 32.0))
sketch7.addConstraint(Sketcher.Constraint("Radius", 3, 10.580065))
sketch7.addConstraint(Sketcher.Constraint("DistanceX", 0, 2, 0, 1, 15.806527))
sketch7.addConstraint(Sketcher.Constraint("DistanceY", -1, 1, 3, 3, 5.625841))
pad3 = body.newObject("PartDesign::Pad", "Pad002")
pad3.Profile = sketch7
pad3.Length = 3
doc.recompute()

fillet3 = body.newObject("PartDesign::Fillet", "Fillet002")
fillet3.Base = (pad3, edges_at(pad3, [
    (-32, 4.126, 0),
    (-32, 7.126, 0),
    (-16.193, 7.126, 0),
    (-16.193, 4.126, 0),
    (-10.473, 4.126, 0),
    (-10.473, 7.126, 0),
    (10.473, 7.126, 0),
    (10.473, 4.126, 0),
    (16.193, 4.126, 0),
    (16.193, 7.126, 0),
    (32, 7.126, 0),
    (32, 4.126, 0),
]))
fillet3.Radius = 1.5

doc.recompute()
